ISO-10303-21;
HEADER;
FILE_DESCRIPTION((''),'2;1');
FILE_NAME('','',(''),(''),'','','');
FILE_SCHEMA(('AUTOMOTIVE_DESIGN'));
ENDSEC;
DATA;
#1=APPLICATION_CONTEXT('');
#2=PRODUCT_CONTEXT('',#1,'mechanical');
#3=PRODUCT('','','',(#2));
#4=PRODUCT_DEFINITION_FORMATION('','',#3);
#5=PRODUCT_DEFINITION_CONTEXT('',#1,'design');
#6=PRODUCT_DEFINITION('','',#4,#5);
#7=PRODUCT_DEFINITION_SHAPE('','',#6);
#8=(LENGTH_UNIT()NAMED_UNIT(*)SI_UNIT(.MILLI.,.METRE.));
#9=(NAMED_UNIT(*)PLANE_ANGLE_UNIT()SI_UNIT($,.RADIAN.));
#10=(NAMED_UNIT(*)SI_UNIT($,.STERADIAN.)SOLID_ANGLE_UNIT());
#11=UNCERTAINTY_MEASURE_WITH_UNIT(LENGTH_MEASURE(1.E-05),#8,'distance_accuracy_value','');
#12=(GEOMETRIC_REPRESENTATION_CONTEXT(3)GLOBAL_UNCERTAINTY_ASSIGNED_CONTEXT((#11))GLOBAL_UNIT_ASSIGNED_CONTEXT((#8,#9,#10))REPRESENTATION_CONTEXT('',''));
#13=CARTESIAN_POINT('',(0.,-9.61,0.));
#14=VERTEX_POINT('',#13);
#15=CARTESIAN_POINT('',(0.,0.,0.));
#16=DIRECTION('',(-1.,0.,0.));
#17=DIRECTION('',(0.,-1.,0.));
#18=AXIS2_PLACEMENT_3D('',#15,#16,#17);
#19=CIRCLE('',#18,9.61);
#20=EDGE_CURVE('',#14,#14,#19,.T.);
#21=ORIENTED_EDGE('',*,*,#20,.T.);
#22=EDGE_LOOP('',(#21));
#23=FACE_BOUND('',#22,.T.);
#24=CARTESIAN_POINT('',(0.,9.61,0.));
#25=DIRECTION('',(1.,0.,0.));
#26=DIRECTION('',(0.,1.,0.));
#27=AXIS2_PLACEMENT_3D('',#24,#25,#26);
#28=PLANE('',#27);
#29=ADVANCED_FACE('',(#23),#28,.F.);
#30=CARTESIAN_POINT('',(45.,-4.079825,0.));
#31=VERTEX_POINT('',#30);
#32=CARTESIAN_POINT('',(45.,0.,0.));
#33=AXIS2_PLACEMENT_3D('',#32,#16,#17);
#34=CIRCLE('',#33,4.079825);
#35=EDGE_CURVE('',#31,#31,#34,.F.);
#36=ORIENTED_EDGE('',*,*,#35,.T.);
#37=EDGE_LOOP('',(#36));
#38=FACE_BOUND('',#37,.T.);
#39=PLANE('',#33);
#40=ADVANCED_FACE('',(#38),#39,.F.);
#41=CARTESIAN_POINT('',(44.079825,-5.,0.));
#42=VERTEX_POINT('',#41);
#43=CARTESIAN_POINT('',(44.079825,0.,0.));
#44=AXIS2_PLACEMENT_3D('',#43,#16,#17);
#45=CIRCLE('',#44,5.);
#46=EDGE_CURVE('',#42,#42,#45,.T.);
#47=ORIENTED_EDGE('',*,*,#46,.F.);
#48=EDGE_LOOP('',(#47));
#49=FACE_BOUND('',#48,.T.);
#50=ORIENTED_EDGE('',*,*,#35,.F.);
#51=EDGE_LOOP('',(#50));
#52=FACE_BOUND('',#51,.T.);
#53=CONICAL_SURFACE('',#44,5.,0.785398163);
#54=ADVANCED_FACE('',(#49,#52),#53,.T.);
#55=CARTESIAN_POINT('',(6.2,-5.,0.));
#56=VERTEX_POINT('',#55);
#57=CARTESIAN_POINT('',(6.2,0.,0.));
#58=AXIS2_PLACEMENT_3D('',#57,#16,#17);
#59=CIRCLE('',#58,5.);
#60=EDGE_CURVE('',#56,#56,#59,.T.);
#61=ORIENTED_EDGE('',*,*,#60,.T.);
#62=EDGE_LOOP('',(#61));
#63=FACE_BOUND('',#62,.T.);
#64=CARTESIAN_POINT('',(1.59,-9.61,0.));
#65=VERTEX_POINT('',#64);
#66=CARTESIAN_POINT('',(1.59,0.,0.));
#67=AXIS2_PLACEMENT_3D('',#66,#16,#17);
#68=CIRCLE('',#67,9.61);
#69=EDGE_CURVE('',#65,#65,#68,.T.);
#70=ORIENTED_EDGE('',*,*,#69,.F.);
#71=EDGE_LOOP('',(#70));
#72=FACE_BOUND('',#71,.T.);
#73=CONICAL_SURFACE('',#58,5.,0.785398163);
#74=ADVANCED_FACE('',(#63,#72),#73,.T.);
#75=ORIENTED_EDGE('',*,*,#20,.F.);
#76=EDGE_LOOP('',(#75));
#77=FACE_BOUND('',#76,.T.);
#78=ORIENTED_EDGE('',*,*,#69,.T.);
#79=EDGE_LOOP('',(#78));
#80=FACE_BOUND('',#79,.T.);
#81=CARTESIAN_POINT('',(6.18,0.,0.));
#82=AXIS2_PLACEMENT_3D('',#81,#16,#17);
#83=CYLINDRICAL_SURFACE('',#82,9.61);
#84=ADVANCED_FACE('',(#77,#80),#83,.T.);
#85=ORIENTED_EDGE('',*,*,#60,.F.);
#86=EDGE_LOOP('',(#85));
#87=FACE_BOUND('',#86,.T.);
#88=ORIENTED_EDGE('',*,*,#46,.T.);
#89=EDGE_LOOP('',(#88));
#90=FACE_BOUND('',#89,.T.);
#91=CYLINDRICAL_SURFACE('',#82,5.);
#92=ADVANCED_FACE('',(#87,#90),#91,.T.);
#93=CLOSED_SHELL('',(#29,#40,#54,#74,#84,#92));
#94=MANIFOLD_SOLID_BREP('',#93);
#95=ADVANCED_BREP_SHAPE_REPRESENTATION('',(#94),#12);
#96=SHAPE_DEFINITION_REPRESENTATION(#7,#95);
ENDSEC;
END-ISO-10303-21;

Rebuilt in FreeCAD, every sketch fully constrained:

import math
import FreeCAD as App
import Part
import Sketcher

V = App.Vector
Q = App.Units.Quantity


def edges_at(feature, points):
    """Names of the edges that pass closest to the given points."""
    edges = feature.Shape.Edges
    near = lambda p: min(range(len(edges)), key=lambda i: edges[i].distToShape(Part.Vertex(*p))[0])
    return sorted({f"Edge{near(p) + 1}" for p in points})


def add_polygon(sketch, points):
    """Adds a closed chain of lines whose ends are joined by coincident constraints."""
    first, n = sketch.GeometryCount, len(points)
    for a, b in zip(points, points[1:] + points[:1]):
        sketch.addGeometry(Part.LineSegment(App.Vector(*a, 0), App.Vector(*b, 0)), False)
    for i in range(n):
        sketch.addConstraint(Sketcher.Constraint("Coincident", first + i, 2, first + (i + 1) % n, 1))

doc = App.newDocument("Part")
body = doc.addObject("PartDesign::Body", "Body")

# Sketch on XY plane
sketch1 = doc.addObject("Sketcher::SketchObject", "Sketch")
body.addObject(sketch1)
sketch1.AttachmentSupport = (doc.XY_Plane, [""])
sketch1.MapMode = "FlatFace"
add_polygon(sketch1, [(45, 0), (45, 5), (6.2, 5), (1.6, 9.6), (0, 9.6), (0, 3.5), (4.2, 3.5), (6.2, 0)])  # lines 0-7
sketch1.addConstraint([
    Sketcher.Constraint("Vertical", 0),
    Sketcher.Constraint("Horizontal", 1),
    Sketcher.Constraint("Horizontal", 3),
    Sketcher.Constraint("Vertical", 4),
    Sketcher.Constraint("Horizontal", 5),
    Sketcher.Constraint("Horizontal", 7),
    Sketcher.Constraint("PointOnObject", 3, 2, -2),
    Sketcher.Constraint("PointOnObject", 6, 2, -1),
    Sketcher.Constraint("DistanceY", 0, 1, 0, 2, 5.0),
    Sketcher.Constraint("Angle", 2, Q("135 deg")),
    Sketcher.Constraint("Angle", 6, Q("-60 deg")),
    Sketcher.Constraint("Distance", 6, 4.0),
    Sketcher.Constraint("DistanceX", 1, 2, 1, 1, 38.8),
    Sketcher.Constraint("DistanceX", -1, 1, 0, 2, 45.0),
    Sketcher.Constraint("DistanceX", 3, 2, 3, 1, 1.59),
    Sketcher.Constraint("DistanceX", 5, 1, 5, 2, 4.18),
])
revolution = doc.addObject("PartDesign::Revolution", "Revolution")
body.addObject(revolution)
revolution.Profile = sketch1
revolution.ReferenceAxis = (sketch1, ["H_Axis"])
revolution.Angle = 360

# Sketch on YZ plane
sketch2 = doc.addObject("Sketcher::SketchObject", "Sketch001")
body.addObject(sketch2)
sketch2.AttachmentSupport = (doc.YZ_Plane, [""])
sketch2.MapMode = "FlatFace"
sketch2.addGeometry([
    Part.ArcOfCircle(Part.Circle(V(0, 0, 0), V(0, 0, 1), 3.5), math.radians(90), math.radians(360)),
    Part.ArcOfCircle(Part.Circle(V(0, 0, 0), V(0, 0, 1), 3.5), math.radians(0), math.radians(90)),
], False)
sketch2.addConstraint([
    Sketcher.Constraint("Tangent", 0, 1, 1, 2),
    Sketcher.Constraint("Coincident", 1, 1, 0, 2),
    Sketcher.Constraint("Coincident", 0, 3, -1, 1),
    Sketcher.Constraint("PointOnObject", 0, 1, -2),
    Sketcher.Constraint("PointOnObject", 1, 1, -1),
    Sketcher.Constraint("Radius", 0, 3.464102),
])
pad1 = doc.addObject("PartDesign::Pad", "Pad")
body.addObject(pad1)
pad1.Profile = sketch2
pad1.Length = 6.18
doc.recompute()

chamfer = doc.addObject("PartDesign::Chamfer", "Chamfer")
body.addObject(chamfer)
chamfer.Base = (pad1, edges_at(pad1, [(45, 5, 0)]))
chamfer.Size = 0.920175

doc.recompute()
